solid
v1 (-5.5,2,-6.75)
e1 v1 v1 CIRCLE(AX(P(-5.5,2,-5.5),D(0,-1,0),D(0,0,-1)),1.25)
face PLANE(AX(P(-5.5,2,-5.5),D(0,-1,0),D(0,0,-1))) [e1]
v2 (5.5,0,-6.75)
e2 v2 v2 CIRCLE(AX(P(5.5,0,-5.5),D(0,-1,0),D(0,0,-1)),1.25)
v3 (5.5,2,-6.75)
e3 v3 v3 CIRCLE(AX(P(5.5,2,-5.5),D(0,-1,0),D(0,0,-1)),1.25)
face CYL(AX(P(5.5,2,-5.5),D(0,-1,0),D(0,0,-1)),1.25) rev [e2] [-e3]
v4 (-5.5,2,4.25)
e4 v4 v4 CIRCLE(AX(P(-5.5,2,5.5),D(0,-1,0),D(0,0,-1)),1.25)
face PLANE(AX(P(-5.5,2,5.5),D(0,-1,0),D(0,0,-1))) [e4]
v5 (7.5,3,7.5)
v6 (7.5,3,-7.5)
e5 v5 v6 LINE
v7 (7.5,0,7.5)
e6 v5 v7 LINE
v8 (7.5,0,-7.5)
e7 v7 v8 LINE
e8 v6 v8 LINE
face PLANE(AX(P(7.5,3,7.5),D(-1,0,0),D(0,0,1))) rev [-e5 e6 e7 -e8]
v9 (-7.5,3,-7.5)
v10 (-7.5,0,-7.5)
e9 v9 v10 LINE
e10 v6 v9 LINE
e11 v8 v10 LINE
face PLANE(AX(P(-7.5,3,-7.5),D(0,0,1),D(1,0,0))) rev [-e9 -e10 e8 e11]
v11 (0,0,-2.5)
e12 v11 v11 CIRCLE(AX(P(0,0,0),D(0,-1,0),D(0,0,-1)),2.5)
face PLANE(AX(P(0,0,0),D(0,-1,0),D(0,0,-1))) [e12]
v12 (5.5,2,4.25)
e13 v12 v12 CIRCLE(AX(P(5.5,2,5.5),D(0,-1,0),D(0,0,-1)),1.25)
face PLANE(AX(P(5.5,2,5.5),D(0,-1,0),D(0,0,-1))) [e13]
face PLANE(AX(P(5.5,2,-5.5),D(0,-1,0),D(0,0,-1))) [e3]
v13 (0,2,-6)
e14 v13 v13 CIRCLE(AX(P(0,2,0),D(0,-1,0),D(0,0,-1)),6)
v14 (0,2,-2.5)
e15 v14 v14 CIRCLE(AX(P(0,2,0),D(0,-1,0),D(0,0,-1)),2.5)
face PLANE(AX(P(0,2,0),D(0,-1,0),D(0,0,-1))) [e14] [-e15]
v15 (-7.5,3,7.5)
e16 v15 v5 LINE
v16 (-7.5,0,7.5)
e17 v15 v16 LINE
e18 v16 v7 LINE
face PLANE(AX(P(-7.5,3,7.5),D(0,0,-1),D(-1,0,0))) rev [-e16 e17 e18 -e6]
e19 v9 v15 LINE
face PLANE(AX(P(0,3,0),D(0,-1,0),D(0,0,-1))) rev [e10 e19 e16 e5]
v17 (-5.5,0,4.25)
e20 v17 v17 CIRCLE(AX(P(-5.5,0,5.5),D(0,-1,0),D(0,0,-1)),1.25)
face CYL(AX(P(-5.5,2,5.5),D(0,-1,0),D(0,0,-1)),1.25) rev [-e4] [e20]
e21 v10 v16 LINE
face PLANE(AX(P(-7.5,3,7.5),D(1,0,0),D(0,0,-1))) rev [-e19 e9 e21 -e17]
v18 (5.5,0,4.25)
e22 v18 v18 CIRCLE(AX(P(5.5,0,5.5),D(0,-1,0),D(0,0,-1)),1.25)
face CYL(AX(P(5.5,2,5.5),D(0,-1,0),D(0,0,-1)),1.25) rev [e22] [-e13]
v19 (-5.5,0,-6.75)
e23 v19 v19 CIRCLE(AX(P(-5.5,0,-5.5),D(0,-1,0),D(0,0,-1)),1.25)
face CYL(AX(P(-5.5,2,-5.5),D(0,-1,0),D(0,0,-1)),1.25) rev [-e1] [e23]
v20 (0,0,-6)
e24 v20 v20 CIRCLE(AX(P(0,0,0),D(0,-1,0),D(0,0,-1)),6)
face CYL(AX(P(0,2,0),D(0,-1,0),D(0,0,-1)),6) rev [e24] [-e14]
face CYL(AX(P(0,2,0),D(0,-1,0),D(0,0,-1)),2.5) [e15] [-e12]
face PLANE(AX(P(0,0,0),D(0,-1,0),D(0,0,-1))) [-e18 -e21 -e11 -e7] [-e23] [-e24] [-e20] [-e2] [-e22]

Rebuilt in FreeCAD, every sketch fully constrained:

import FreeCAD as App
import Part
import Sketcher
from FreeCAD import Vector

doc = App.newDocument("Part")
body = doc.addObject("PartDesign::Body", "Body")

# Sketch on XZ plane
sketch1 = body.newObject("Sketcher::SketchObject", "Sketch")
sketch1.AttachmentSupport = (doc.getObject("XZ_Plane"), [""])
sketch1.MapMode = "FlatFace"
sketch1.addGeometry([
    Part.LineSegment(Vector(-8, -8, 0), Vector(-8, 8, 0)),
    Part.LineSegment(Vector(-8, 8, 0), Vector(8, 8, 0)),
    Part.LineSegment(Vector(8, 8, 0), Vector(8, -8, 0)),
    Part.LineSegment(Vector(8, -8, 0), Vector(-8, -8, 0)),
], False)
sketch1.addConstraint([
    Sketcher.Constraint("Coincident", 0, 2, 1, 1),
    Sketcher.Constraint("Coincident", 1, 2, 2, 1),
    Sketcher.Constraint("Coincident", 2, 2, 3, 1),
    Sketcher.Constraint("Coincident", 3, 2, 0, 1),
    Sketcher.Constraint("Vertical", 0),
    Sketcher.Constraint("Horizontal", 1),
    Sketcher.Constraint("Vertical", 2),
    Sketcher.Constraint("Horizontal", 3),
    Sketcher.Constraint("Symmetric", 0, 2, 2, 2, -1, 1),
    Sketcher.Constraint("Equal", 3, 0),
    Sketcher.Constraint("DistanceX", 1, 1, 1, 2, 15.0),
])
pad1 = body.newObject("PartDesign::Pad", "Pad")
pad1.Profile = sketch1
pad1.Length = 3
pad1.Reversed = True

# Sketch on XZ plane
sketch2 = body.newObject("Sketcher::SketchObject", "Sketch001")
sketch2.AttachmentSupport = (doc.getObject("XZ_Plane"), [""])
sketch2.MapMode = "FlatFace"
sketch2.addGeometry([
    Part.Circle(Vector(0, 0, 0), Vector(0, 0, 1), 6),
    Part.Circle(Vector(0, 0, 0), Vector(0, 0, 1), 2.5),
], False)
sketch2.addConstraint([
    Sketcher.Constraint("Coincident", 0, 3, -1, 1),
    Sketcher.Constraint("Coincident", 1, 3, -1, 1),
    Sketcher.Constraint("Diameter", 0, 12.0),
    Sketcher.Constraint("Diameter", 1, 5.0),
])
pocket1 = body.newObject("PartDesign::Pocket", "Pocket")
pocket1.Profile = sketch2
pocket1.Length = 2

# Sketch on XZ plane
sketch3 = body.newObject("Sketcher::SketchObject", "Sketch002")
sketch3.AttachmentSupport = (doc.getObject("XZ_Plane"), [""])
sketch3.MapMode = "FlatFace"
sketch3.addGeometry([
    Part.Circle(Vector(-5.5, 5.5, 0), Vector(0, 0, 1), 1.2),
    Part.Circle(Vector(5.5, 5.5, 0), Vector(0, 0, 1), 1.2),
    Part.Circle(Vector(5.5, -5.5, 0), Vector(0, 0, 1), 1.2),
    Part.Circle(Vector(-5.5, -5.5, 0), Vector(0, 0, 1), 1.2),
], False)
sketch3.addConstraint([
    Sketcher.Constraint("Equal", 0, 1),
    Sketcher.Constraint("Equal", 1, 2),
    Sketcher.Constraint("Equal", 2, 3),
    Sketcher.Constraint("Symmetric", 0, 3, 2, 3, -1, 1),
    Sketcher.Constraint("Symmetric", 1, 3, 3, 3, -1, 1),
    Sketcher.Constraint("Symmetric", 0, 3, 1, 3, -2),
    Sketcher.Constraint("Diameter", 0, 2.5),
    Sketcher.Constraint("DistanceX", 0, 3, 1, 3, 11.0),
    Sketcher.Constraint("DistanceY", 2, 3, 1, 3, 11.0),
])
pocket2 = body.newObject("PartDesign::Pocket", "Pocket001")
pocket2.Profile = sketch3
pocket2.Length = 2

doc.recompute()
